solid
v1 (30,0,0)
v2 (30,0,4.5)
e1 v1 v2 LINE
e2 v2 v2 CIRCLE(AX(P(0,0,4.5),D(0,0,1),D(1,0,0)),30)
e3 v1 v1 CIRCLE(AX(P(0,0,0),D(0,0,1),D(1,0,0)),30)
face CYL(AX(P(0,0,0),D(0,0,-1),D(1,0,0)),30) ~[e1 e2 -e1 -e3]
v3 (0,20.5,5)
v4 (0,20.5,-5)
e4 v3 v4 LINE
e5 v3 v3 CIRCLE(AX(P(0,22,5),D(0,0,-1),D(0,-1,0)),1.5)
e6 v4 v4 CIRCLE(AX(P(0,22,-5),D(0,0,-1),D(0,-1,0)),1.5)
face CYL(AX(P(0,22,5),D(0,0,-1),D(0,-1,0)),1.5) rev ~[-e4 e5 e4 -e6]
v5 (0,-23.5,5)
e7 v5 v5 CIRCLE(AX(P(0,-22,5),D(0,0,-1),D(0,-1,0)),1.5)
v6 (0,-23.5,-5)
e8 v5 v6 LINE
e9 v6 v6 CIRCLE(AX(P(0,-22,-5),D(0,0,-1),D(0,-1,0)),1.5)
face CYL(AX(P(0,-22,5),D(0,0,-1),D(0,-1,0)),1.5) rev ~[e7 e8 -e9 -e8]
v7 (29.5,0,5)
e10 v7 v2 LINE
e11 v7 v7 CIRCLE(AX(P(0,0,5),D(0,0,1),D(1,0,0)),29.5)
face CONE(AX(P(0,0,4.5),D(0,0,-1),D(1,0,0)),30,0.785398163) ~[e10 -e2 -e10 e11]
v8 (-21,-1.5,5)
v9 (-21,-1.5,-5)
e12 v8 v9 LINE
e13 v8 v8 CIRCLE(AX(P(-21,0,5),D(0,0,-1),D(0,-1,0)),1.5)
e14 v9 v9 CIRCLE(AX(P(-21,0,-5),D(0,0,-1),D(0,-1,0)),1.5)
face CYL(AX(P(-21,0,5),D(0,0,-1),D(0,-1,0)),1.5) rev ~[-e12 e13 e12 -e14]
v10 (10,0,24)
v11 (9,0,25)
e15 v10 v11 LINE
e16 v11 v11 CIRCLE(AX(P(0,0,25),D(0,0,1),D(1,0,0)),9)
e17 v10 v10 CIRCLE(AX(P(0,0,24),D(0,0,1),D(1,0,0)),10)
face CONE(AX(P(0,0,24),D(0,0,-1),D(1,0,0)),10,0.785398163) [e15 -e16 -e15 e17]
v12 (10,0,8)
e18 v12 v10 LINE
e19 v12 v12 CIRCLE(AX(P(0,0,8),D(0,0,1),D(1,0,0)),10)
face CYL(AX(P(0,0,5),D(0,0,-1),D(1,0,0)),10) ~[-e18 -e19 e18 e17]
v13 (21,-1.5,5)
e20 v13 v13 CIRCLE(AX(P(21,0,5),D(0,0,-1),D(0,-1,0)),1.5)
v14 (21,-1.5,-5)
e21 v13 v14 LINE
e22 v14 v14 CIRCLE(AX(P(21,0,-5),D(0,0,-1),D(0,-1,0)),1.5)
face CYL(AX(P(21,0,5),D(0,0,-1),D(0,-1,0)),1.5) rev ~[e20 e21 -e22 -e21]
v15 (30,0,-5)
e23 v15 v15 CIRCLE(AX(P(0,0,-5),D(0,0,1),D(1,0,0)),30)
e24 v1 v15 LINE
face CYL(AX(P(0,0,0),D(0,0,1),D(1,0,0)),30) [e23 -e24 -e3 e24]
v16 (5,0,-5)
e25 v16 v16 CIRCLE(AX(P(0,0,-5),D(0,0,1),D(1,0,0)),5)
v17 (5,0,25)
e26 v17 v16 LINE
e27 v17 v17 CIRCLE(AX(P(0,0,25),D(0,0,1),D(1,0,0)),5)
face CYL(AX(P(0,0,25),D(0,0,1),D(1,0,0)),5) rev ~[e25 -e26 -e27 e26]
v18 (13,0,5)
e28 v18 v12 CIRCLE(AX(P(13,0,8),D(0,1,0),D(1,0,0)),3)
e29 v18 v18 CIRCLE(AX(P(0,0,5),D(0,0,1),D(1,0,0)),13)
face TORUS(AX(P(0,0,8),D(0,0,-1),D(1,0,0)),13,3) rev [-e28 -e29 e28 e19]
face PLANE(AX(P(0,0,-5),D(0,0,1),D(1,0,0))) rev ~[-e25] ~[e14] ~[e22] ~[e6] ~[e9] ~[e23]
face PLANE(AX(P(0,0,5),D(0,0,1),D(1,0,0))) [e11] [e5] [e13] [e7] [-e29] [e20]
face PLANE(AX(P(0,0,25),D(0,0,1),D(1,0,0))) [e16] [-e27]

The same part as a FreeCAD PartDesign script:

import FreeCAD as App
import Part
import Sketcher


def edges_at(feature, points):
    """Names of the edges that pass closest to the given points."""
    edges = feature.Shape.Edges
    near = lambda p: min(range(len(edges)), key=lambda i: edges[i].distToShape(Part.Vertex(*p))[0])
    return sorted({f"Edge{near(p) + 1}" for p in points})

doc = App.newDocument("Part")
body = doc.addObject("PartDesign::Body", "Body")

# Sketch on XY plane
sketch1 = body.newObject("Sketcher::SketchObject", "Sketch")
sketch1.AttachmentSupport = (doc.getObject("XY_Plane"), [""])
sketch1.MapMode = "FlatFace"
sketch1.addGeometry(Part.Circle(App.Vector(0, 0, 0), App.Vector(0, 0, 1), 30), False)
sketch1.addConstraint(Sketcher.Constraint("Coincident", 0, 3, -1, 1))
sketch1.addConstraint(Sketcher.Constraint("Diameter", 0, 60.0))
pad1 = body.newObject("PartDesign::Pad", "Pad")
pad1.Profile = sketch1
pad1.Length = 10
pad1.Midplane = True

# Sketch on XY plane
sketch2 = body.newObject("Sketcher::SketchObject", "Sketch001")
sketch2.AttachmentSupport = (doc.getObject("XY_Plane"), [""])
sketch2.MapMode = "FlatFace"
sketch2.AttachmentOffset = App.Placement(App.Vector(0, 0, 5), App.Rotation())
sketch2.addGeometry(Part.Circle(App.Vector(0, 0, 0), App.Vector(0, 0, 1), 10), False)
sketch2.addConstraint(Sketcher.Constraint("Coincident", 0, 3, -1, 1))
sketch2.addConstraint(Sketcher.Constraint("Diameter", 0, 20.0))
pad2 = body.newObject("PartDesign::Pad", "Pad001")
pad2.Profile = sketch2
pad2.Length = 20

# Sketch on XY plane
sketch3 = body.newObject("Sketcher::SketchObject", "Sketch002")
sketch3.AttachmentSupport = (doc.getObject("XY_Plane"), [""])
sketch3.MapMode = "FlatFace"
sketch3.AttachmentOffset = App.Placement(App.Vector(0, 0, 25), App.Rotation())
sketch3.addGeometry(Part.Circle(App.Vector(0, 0, 0), App.Vector(0, 0, 1), 5), False)
sketch3.addConstraint(Sketcher.Constraint("Coincident", 0, 3, -1, 1))
sketch3.addConstraint(Sketcher.Constraint("Diameter", 0, 10.0))
pocket1 = body.newObject("PartDesign::Pocket", "Pocket")
pocket1.Profile = sketch3
pocket1.Type = "ThroughAll"
doc.recompute()

fillet = body.newObject("PartDesign::Fillet", "Fillet")
fillet.Base = (pocket1, edges_at(pocket1, [(-10, 0, 5)]))
fillet.Radius = 3
doc.recompute()

chamfer = body.newObject("PartDesign::Chamfer", "Chamfer")
chamfer.Base = (fillet, edges_at(fillet, [(-10, 0, 25)]))
chamfer.Size = 1

# Sketch on XY plane
sketch4 = body.newObject("Sketcher::SketchObject", "Sketch003")
sketch4.AttachmentSupport = (doc.getObject("XY_Plane"), [""])
sketch4.MapMode = "FlatFace"
sketch4.AttachmentOffset = App.Placement(App.Vector(0, 0, 5), App.Rotation())
sketch4.addGeometry(Part.Circle(App.Vector(-21, 0, 0), App.Vector(0, 0, 1), 1.5), False)
sketch4.addGeometry(Part.Circle(App.Vector(21, 0, 0), App.Vector(0, 0, 1), 1.5), False)
sketch4.addGeometry(Part.Circle(App.Vector(0, 22, 0), App.Vector(0, 0, 1), 1.5), False)
sketch4.addGeometry(Part.Circle(App.Vector(0, -22, 0), App.Vector(0, 0, 1), 1.5), False)
sketch4.addConstraint(Sketcher.Constraint("Equal", 0, 1))
sketch4.addConstraint(Sketcher.Constraint("Equal", 1, 2))
sketch4.addConstraint(Sketcher.Constraint("Equal", 2, 3))
sketch4.addConstraint(Sketcher.Constraint("Symmetric", 0, 3, 1, 3, -1, 1))
sketch4.addConstraint(Sketcher.Constraint("Symmetric", 2, 3, 3, 3, -1, 1))
sketch4.addConstraint(Sketcher.Constraint("PointOnObject", 0, 3, -1))
sketch4.addConstraint(Sketcher.Constraint("PointOnObject", 2, 3, -2))
sketch4.addConstraint(Sketcher.Constraint("Diameter", 0, 3.0))
sketch4.addConstraint(Sketcher.Constraint("DistanceX", 0, 3, -1, 1, 21.0))
sketch4.addConstraint(Sketcher.Constraint("DistanceY", -1, 1, 2, 3, 22.0))
doc.recompute()
hole = body.newObject("PartDesign::Hole", "Hole")
hole.Profile = sketch4
hole.ThreadType = "None"
hole.Diameter = 3
hole.DepthType = "ThroughAll"
doc.recompute()

chamfer2 = body.newObject("PartDesign::Chamfer", "Chamfer001")
chamfer2.Base = (hole, edges_at(hole, [(-30, 0, 5)]))
chamfer2.Size = 0.5

doc.recompute()
